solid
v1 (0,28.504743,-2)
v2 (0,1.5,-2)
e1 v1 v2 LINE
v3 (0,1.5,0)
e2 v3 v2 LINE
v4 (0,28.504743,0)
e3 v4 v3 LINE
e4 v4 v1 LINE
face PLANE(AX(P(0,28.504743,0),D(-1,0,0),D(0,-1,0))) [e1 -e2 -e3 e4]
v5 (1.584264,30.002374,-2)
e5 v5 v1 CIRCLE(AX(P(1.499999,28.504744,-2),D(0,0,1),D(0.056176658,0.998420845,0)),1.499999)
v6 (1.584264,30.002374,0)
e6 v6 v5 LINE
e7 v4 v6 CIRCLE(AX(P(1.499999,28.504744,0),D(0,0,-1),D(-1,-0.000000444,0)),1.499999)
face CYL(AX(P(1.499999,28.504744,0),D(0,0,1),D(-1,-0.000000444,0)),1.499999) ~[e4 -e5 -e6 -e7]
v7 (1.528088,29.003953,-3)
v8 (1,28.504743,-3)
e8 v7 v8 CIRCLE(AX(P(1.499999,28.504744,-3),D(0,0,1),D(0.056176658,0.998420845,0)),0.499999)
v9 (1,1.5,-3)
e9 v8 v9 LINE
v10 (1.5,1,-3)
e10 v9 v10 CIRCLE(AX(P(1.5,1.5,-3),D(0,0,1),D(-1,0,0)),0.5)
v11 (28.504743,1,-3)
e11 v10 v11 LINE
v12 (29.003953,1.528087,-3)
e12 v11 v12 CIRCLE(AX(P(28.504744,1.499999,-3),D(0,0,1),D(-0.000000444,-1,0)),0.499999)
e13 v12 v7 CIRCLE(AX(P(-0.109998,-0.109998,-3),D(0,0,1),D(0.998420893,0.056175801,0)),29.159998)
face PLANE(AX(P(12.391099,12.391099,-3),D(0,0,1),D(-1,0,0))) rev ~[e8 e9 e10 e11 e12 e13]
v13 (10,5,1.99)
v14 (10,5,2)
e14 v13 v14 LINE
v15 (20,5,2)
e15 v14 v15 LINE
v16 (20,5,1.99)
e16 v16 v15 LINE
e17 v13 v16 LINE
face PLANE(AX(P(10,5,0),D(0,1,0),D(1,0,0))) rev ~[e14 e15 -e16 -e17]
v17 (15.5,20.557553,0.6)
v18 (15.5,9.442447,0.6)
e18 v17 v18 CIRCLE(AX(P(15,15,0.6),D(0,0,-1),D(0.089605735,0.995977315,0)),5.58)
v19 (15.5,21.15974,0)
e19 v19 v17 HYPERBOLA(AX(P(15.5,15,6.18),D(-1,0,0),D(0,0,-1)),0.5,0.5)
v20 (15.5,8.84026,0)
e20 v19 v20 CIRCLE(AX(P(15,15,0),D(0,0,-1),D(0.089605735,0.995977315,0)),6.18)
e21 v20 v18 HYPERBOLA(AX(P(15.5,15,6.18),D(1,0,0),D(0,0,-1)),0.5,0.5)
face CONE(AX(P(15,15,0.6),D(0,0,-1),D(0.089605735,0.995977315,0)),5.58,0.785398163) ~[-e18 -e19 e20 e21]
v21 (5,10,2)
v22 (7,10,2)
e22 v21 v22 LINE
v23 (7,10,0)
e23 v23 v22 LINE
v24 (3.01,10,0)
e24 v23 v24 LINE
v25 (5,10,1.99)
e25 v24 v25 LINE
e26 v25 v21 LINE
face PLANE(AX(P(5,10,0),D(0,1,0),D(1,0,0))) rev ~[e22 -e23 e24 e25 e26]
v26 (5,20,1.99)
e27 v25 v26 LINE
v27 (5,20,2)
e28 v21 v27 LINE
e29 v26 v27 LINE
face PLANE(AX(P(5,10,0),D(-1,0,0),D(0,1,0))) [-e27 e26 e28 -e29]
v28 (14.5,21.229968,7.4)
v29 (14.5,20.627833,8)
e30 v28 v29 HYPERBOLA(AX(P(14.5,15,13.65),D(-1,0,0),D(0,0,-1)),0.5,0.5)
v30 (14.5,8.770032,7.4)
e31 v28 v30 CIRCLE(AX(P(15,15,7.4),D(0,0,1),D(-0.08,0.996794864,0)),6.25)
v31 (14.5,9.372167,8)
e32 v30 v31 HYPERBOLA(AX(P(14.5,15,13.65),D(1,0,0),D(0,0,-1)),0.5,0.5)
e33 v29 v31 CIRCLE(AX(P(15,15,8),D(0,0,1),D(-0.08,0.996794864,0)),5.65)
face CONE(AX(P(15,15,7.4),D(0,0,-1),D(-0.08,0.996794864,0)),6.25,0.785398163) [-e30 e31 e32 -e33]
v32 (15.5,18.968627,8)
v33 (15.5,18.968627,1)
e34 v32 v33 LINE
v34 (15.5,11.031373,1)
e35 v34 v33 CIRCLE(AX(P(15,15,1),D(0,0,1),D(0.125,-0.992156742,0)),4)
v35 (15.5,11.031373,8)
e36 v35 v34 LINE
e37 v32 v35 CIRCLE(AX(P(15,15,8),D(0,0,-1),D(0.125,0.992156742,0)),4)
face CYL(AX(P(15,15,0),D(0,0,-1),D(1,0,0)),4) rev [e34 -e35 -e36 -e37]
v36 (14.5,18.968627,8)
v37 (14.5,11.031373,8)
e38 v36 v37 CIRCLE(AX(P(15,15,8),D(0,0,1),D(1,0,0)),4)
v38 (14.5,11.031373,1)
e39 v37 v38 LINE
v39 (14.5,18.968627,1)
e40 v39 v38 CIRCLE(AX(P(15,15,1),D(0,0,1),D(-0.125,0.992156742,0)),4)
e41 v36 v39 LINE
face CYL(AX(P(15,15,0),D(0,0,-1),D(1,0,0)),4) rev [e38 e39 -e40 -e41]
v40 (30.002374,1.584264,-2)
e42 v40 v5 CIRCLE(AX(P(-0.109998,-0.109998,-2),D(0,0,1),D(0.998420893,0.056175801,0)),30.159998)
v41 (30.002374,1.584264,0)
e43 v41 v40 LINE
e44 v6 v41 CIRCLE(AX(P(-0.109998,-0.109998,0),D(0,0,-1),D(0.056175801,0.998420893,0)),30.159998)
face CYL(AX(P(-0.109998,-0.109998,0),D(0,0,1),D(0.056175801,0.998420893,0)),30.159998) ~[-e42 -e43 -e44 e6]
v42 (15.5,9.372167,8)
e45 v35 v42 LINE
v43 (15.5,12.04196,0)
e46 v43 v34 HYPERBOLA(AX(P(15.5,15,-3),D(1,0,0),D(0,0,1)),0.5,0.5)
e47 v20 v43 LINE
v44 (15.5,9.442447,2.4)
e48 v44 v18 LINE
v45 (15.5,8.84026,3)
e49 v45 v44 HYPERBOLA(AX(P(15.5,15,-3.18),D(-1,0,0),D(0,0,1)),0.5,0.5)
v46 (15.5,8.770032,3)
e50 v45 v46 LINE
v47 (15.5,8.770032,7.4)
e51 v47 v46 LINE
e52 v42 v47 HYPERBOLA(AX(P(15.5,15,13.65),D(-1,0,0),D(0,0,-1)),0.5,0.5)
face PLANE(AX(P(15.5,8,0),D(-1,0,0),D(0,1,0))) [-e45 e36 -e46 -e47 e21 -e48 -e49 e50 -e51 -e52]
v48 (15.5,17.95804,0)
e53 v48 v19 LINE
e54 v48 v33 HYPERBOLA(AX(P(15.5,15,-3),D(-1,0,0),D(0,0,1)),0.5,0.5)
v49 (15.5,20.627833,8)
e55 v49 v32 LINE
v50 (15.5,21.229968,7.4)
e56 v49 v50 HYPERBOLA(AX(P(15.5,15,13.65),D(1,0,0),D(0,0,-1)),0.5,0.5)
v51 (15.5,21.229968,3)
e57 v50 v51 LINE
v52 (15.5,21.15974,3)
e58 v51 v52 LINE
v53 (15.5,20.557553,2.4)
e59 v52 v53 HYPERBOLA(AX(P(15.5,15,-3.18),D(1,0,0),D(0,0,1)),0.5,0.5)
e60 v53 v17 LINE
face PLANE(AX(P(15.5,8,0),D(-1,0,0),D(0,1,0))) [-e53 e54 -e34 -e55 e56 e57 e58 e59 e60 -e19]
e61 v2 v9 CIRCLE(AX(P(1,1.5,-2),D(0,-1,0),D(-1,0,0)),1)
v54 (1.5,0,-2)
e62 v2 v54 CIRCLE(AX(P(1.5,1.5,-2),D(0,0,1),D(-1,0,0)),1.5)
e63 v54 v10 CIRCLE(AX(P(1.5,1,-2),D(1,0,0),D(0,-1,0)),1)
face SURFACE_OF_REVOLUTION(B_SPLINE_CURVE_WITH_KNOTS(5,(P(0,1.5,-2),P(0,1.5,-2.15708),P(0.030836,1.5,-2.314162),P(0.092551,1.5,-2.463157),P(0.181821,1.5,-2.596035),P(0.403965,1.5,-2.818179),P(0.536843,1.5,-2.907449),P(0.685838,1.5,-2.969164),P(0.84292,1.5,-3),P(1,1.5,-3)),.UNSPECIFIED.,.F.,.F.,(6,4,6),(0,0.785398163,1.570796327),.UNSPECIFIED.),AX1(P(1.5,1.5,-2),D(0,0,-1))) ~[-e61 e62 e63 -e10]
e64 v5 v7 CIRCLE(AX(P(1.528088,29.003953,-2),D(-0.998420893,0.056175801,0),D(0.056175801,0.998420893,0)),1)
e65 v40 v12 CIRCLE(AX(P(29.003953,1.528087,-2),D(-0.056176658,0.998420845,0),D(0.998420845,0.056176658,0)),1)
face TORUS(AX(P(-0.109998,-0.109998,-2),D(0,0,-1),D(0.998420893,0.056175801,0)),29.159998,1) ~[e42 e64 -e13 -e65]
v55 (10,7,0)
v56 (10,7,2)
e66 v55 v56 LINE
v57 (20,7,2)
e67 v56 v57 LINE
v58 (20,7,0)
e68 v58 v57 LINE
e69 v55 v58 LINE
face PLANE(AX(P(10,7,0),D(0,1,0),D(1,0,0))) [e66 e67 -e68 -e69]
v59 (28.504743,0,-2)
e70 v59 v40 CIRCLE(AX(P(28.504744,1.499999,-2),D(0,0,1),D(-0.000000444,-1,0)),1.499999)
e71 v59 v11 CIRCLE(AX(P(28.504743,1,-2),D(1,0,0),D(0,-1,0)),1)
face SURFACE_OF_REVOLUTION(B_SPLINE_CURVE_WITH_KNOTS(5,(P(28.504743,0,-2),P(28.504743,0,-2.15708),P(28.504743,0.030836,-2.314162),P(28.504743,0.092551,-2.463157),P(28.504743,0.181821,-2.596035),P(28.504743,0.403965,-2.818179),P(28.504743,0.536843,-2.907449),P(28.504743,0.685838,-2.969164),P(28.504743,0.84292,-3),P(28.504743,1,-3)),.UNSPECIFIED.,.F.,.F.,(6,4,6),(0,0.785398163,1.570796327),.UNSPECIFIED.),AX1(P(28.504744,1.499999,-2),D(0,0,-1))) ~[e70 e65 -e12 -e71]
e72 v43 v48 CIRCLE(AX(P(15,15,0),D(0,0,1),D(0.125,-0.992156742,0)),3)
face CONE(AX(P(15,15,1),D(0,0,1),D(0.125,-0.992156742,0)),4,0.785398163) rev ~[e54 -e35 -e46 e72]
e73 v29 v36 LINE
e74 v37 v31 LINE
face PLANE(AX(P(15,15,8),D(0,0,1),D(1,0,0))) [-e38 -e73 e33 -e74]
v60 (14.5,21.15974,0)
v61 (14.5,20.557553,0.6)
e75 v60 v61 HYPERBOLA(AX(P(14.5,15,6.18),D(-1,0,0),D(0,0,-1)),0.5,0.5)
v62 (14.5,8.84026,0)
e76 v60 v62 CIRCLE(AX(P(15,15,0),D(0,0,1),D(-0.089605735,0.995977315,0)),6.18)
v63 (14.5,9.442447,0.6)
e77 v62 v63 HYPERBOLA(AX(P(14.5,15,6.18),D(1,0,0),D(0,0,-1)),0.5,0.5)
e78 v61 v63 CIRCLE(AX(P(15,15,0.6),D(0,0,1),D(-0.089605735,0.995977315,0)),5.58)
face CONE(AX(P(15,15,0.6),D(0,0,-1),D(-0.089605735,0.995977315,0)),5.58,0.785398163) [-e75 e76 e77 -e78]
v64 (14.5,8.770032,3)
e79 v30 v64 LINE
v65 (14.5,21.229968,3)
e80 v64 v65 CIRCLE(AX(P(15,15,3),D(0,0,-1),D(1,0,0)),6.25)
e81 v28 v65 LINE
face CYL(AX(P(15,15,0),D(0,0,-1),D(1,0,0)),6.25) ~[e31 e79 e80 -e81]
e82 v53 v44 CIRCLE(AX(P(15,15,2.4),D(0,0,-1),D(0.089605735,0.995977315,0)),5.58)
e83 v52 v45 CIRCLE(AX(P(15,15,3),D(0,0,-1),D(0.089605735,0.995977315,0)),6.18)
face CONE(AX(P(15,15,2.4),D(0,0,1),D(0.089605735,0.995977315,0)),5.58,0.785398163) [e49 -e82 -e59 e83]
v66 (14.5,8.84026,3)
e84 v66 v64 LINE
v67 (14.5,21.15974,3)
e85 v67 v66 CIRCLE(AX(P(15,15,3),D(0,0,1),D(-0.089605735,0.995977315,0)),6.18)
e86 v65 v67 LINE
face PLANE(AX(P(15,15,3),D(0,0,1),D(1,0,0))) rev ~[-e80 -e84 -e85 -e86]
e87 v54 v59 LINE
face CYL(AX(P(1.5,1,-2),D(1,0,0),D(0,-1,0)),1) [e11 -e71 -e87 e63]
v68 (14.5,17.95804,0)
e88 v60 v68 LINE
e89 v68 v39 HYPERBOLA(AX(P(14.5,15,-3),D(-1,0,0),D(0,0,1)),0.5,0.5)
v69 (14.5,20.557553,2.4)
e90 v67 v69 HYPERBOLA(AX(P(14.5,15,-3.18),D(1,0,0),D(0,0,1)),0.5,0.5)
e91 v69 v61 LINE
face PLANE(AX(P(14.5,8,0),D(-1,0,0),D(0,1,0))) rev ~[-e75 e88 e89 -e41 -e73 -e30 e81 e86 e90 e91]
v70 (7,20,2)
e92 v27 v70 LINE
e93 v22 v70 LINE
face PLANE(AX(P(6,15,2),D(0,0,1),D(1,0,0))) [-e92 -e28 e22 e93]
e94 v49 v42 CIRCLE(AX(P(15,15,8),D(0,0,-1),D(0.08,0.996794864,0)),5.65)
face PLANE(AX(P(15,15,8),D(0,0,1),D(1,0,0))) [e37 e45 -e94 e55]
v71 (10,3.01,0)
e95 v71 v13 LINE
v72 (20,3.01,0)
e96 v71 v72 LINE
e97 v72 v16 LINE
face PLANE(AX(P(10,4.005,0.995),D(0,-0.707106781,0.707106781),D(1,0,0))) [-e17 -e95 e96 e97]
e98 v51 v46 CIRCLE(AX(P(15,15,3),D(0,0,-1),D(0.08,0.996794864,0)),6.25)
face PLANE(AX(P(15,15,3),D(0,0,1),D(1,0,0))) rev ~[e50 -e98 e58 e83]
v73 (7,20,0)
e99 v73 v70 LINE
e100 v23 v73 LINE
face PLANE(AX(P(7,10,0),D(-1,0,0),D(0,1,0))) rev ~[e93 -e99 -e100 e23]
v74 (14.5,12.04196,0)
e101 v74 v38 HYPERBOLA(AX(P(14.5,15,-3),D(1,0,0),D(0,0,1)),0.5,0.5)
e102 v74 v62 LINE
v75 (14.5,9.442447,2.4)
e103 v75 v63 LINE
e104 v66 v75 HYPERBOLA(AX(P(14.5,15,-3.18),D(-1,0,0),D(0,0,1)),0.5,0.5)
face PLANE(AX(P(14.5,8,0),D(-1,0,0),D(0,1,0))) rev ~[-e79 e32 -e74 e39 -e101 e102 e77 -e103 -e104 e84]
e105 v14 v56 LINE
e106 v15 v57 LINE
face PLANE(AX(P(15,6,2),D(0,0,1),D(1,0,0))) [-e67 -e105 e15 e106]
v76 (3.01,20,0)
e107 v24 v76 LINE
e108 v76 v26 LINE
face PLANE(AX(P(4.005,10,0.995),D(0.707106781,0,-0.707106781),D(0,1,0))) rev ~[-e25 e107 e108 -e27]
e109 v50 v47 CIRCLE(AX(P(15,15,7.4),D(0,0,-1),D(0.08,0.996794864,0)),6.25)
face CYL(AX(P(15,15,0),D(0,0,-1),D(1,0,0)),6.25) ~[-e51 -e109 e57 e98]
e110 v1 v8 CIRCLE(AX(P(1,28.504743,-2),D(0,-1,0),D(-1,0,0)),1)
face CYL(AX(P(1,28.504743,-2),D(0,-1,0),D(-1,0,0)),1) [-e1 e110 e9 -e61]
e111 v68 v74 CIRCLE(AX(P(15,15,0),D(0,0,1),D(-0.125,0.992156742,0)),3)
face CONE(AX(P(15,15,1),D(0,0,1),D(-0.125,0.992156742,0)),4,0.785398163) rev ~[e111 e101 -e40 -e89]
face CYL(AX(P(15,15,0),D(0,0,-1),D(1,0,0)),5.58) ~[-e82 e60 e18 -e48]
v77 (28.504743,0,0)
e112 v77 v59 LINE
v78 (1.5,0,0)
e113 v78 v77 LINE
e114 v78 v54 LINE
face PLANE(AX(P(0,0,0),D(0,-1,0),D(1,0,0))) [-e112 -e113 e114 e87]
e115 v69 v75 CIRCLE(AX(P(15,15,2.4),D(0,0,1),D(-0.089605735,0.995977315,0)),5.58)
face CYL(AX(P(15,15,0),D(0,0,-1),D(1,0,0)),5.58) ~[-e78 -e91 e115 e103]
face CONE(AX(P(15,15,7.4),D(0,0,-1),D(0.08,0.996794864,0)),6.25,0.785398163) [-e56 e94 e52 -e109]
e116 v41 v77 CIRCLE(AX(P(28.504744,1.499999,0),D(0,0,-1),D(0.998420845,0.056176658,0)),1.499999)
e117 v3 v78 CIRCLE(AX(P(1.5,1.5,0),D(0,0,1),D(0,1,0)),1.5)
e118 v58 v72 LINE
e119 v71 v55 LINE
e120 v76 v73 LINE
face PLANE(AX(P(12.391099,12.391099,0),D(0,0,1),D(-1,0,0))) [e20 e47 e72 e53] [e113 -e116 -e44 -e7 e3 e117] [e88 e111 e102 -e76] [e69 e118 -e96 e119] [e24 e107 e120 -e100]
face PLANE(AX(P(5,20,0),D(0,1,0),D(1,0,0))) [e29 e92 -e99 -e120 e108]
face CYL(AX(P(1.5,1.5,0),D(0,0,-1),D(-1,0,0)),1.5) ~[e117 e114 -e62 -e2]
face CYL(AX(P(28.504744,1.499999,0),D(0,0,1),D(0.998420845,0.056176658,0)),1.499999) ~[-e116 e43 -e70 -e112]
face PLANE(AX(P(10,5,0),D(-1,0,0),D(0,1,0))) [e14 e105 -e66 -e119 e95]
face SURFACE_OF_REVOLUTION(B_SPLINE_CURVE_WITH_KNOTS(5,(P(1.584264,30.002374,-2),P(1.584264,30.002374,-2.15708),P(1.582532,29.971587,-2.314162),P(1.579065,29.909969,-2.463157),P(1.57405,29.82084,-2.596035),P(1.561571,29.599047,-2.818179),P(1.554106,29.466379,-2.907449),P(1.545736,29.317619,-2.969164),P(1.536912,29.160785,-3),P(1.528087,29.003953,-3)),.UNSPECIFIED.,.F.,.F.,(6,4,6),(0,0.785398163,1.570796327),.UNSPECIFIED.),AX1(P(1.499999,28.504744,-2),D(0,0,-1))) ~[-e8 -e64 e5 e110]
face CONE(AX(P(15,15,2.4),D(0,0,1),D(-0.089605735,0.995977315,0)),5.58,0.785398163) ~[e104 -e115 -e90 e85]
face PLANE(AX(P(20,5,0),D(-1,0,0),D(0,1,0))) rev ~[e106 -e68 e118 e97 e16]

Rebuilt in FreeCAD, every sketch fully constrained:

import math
import FreeCAD as App
import Part
import Sketcher


def edges_at(feature, points):
    """Names of the edges that pass closest to the given points."""
    edges = feature.Shape.Edges
    near = lambda p: min(range(len(edges)), key=lambda i: edges[i].distToShape(Part.Vertex(*p))[0])
    return sorted({f"Edge{near(p) + 1}" for p in points})

doc = App.newDocument("Part")
body = doc.addObject("PartDesign::Body", "Body")

sketch1 = body.newObject("Sketcher::SketchObject", "Sketch")
sketch1.AttachmentSupport = (doc.getObject("XY_Plane"), [""])
sketch1.MapMode = "FlatFace"
sketch1.addGeometry([
    Part.Circle(App.Vector(15, 15, 0), App.Vector(0, 0, 1), 6.2),
    Part.Circle(App.Vector(15, 15, 0), App.Vector(0, 0, 1), 4),
], False)
sketch1.addConstraint([
    Sketcher.Constraint("Coincident", 1, 3, 0, 3),
    Sketcher.Constraint("Diameter", 1, 8.0),
    Sketcher.Constraint("Diameter", 0, 12.5),
    Sketcher.Constraint("DistanceX", -1, 1, 0, 3, 15.0),
    Sketcher.Constraint("DistanceY", -1, 1, 0, 3, 15.0),
])
pad1 = body.newObject("PartDesign::Pad", "Pad")
pad1.Profile = sketch1
pad1.Length = 8

sketch2 = body.newObject("Sketcher::SketchObject", "Sketch001")
sketch2.AttachmentSupport = (doc.getObject("XY_Plane"), [""])
sketch2.MapMode = "FlatFace"
sketch2.addGeometry([
    Part.LineSegment(App.Vector(0, 0, 0), App.Vector(0, 28.5, 0)),
    Part.ArcOfCircle(Part.Circle(App.Vector(1.5, 28.5, 0), App.Vector(0, 0, 1), 1.5), math.radians(87), math.radians(180)),
    Part.ArcOfCircle(Part.Circle(App.Vector(-0.1, -0.1, 0), App.Vector(0, 0, 1), 30.2), math.radians(3), math.radians(87)),
    Part.ArcOfCircle(Part.Circle(App.Vector(28.5, 1.5, 0), App.Vector(0, 0, 1), 1.5), math.radians(-90), math.radians(3)),
    Part.LineSegment(App.Vector(28.5, 0, 0), App.Vector(0, 0, 0)),
], False)
sketch2.addConstraint([
    Sketcher.Constraint("Tangent", 0, 2, 1, 2),
    Sketcher.Constraint("Tangent", 1, 1, 2, 2),
    Sketcher.Constraint("Tangent", 2, 1, 3, 2),
    Sketcher.Constraint("Tangent", 3, 1, 4, 1),
    Sketcher.Constraint("Coincident", 4, 2, 0, 1),
    Sketcher.Constraint("Vertical", 0),
    Sketcher.Constraint("Horizontal", 4),
    Sketcher.Constraint("Coincident", 4, 2, -1, 1),
    Sketcher.Constraint("Equal", 1, 3),
    Sketcher.Constraint("Equal", 4, 0),
    Sketcher.Constraint("Radius", 1, 1.499999),
    Sketcher.Constraint("DistanceX", 2, 3, -1, 1, 0.109998),
    Sketcher.Constraint("Radius", 2, 30.159998),
])
pad2 = body.newObject("PartDesign::Pad", "Pad001")
pad2.Profile = sketch2
pad2.Length = 3
pad2.Reversed = True
doc.recompute()

fillet = body.newObject("PartDesign::Fillet", "Fillet")
fillet.Base = (pad2, edges_at(pad2, [(0, 0, -1.5)]))
fillet.Radius = 1.5
doc.recompute()

fillet2 = body.newObject("PartDesign::Fillet", "Fillet001")
fillet2.Base = (fillet, edges_at(fillet, [
    (0, 15.002, -3),
    (0.439, 0.439, -3),
    (0.47, 29.595, -3),
    (15.002, 0, -3),
    (21.216, 21.216, -3),
    (29.595, 0.47, -3),
]))
fillet2.Radius = 1

sketch3 = body.newObject("Sketcher::SketchObject", "Sketch002")
sketch3.AttachmentSupport = (doc.getObject("XY_Plane"), [""])
sketch3.MapMode = "FlatFace"
sketch3.addGeometry([
    Part.LineSegment(App.Vector(5, 20, 0), App.Vector(5, 10, 0)),
    Part.LineSegment(App.Vector(5, 10, 0), App.Vector(7, 10, 0)),
    Part.LineSegment(App.Vector(7, 10, 0), App.Vector(7, 20, 0)),
    Part.LineSegment(App.Vector(7, 20, 0), App.Vector(5, 20, 0)),
    Part.LineSegment(App.Vector(10, 7, 0), App.Vector(10, 5, 0)),
    Part.LineSegment(App.Vector(10, 5, 0), App.Vector(20, 5, 0)),
    Part.LineSegment(App.Vector(20, 5, 0), App.Vector(20, 7, 0)),
    Part.LineSegment(App.Vector(20, 7, 0), App.Vector(10, 7, 0)),
], False)
sketch3.addConstraint([
    Sketcher.Constraint("Coincident", 0, 2, 1, 1),
    Sketcher.Constraint("Coincident", 1, 2, 2, 1),
    Sketcher.Constraint("Coincident", 2, 2, 3, 1),
    Sketcher.Constraint("Coincident", 3, 2, 0, 1),
    Sketcher.Constraint("Coincident", 4, 2, 5, 1),
    Sketcher.Constraint("Coincident", 5, 2, 6, 1),
    Sketcher.Constraint("Coincident", 6, 2, 7, 1),
    Sketcher.Constraint("Coincident", 7, 2, 4, 1),
    Sketcher.Constraint("Vertical", 0),
    Sketcher.Constraint("Horizontal", 1),
    Sketcher.Constraint("Vertical", 2),
    Sketcher.Constraint("Horizontal", 3),
    Sketcher.Constraint("Vertical", 4),
    Sketcher.Constraint("Horizontal", 5),
    Sketcher.Constraint("Vertical", 6),
    Sketcher.Constraint("Horizontal", 7),
    Sketcher.Constraint("Equal", 7, 0),
    Sketcher.Constraint("Equal", 3, 4),
    Sketcher.Constraint("DistanceX", 1, 1, 1, 2, 2.0),
    Sketcher.Constraint("DistanceX", 5, 1, 5, 2, 10.0),
    Sketcher.Constraint("DistanceX", -1, 1, 0, 2, 5.0),
    Sketcher.Constraint("DistanceY", -1, 1, 0, 2, 10.0),
    Sketcher.Constraint("DistanceX", -1, 1, 4, 2, 10.0),
    Sketcher.Constraint("DistanceY", -1, 1, 4, 2, 5.0),
])
pad3 = body.newObject("PartDesign::Pad", "Pad002")
pad3.Profile = sketch3
pad3.Length = 2
doc.recompute()

chamfer = body.newObject("PartDesign::Chamfer", "Chamfer")
chamfer.Base = (pad3, edges_at(pad3, [(15, 5, 0), (5, 15, 0)]))
chamfer.Size = 1.99

sketch4 = body.newObject("Sketcher::SketchObject", "Sketch003")
sketch4.AttachmentSupport = (doc.getObject("XY_Plane"), [""])
sketch4.MapMode = "FlatFace"
sketch4.addGeometry([
    Part.Circle(App.Vector(15, 15, 0), App.Vector(0, 0, 1), 6),
    Part.Circle(App.Vector(15, 15, 0), App.Vector(0, 0, 1), 6),
], False)
sketch4.addConstraint([
    Sketcher.Constraint("Coincident", 1, 3, 0, 3),
    Sketcher.Constraint("Diameter", 0, 12.52),
    Sketcher.Constraint("Diameter", 1, 11.16),
    Sketcher.Constraint("DistanceX", -1, 1, 0, 3, 15.0),
    Sketcher.Constraint("DistanceY", -1, 1, 0, 3, 15.0),
])
pocket1 = body.newObject("PartDesign::Pocket", "Pocket")
pocket1.Profile = sketch4
pocket1.Length = 3
pocket1.Reversed = True

sketch5 = body.newObject("Sketcher::SketchObject", "Sketch004")
sketch5.AttachmentSupport = (doc.getObject("XY_Plane"), [""])
sketch5.MapMode = "FlatFace"
sketch5.addGeometry([
    Part.LineSegment(App.Vector(14.5, 22, 0), App.Vector(14.5, 8, 0)),
    Part.LineSegment(App.Vector(14.5, 8, 0), App.Vector(15.5, 8, 0)),
    Part.LineSegment(App.Vector(15.5, 8, 0), App.Vector(15.5, 22, 0)),
    Part.LineSegment(App.Vector(15.5, 22, 0), App.Vector(14.5, 22, 0)),
], False)
sketch5.addConstraint([
    Sketcher.Constraint("Coincident", 0, 2, 1, 1),
    Sketcher.Constraint("Coincident", 1, 2, 2, 1),
    Sketcher.Constraint("Coincident", 2, 2, 3, 1),
    Sketcher.Constraint("Coincident", 3, 2, 0, 1),
    Sketcher.Constraint("Vertical", 0),
    Sketcher.Constraint("Horizontal", 1),
    Sketcher.Constraint("Vertical", 2),
    Sketcher.Constraint("Horizontal", 3),
    Sketcher.Constraint("DistanceX", 1, 1, 1, 2, 1.0),
    Sketcher.Constraint("DistanceY", 0, 2, 0, 1, 14.0),
    Sketcher.Constraint("DistanceY", -1, 1, 0, 2, 8.0),
    Sketcher.Constraint("DistanceX", -1, 1, 0, 2, 14.5),
])
pocket2 = body.newObject("PartDesign::Pocket", "Pocket001")
pocket2.Profile = sketch5
pocket2.Length = 20
pocket2.Reversed = True
doc.recompute()

chamfer2 = body.newObject("PartDesign::Chamfer", "Chamfer001")
chamfer2.Base = (pocket2, edges_at(pocket2, [
    (20.58, 15, 0),
    (9.42, 15, 0),
    (9.42, 15, 3),
    (20.58, 15, 3),
    (8.75, 15, 8),
    (21.25, 15, 8),
]))
chamfer2.Size = 0.6
doc.recompute()

chamfer3 = body.newObject("PartDesign::Chamfer", "Chamfer002")
chamfer3.Base = (chamfer2, edges_at(chamfer2, [(11, 15, 0), (19, 15, 0)]))
chamfer3.Size = 1

doc.recompute()
